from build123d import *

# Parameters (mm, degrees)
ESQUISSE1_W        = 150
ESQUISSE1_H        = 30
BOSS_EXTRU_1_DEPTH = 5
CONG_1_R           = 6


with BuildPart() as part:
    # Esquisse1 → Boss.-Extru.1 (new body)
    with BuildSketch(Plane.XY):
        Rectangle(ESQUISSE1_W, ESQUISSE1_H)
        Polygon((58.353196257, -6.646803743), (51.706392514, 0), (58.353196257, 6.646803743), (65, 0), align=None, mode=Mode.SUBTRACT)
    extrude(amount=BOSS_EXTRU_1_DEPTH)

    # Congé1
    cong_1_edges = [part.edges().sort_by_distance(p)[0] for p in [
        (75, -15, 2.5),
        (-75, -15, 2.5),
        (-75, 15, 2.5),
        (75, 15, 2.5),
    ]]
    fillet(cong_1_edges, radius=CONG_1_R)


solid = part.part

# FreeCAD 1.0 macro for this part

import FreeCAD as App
import Part
import Sketcher


def edges_at(feature, points):
    """Names of the edges that pass closest to the given points."""
    edges = feature.Shape.Edges
    near = lambda p: min(range(len(edges)), key=lambda i: edges[i].distToShape(Part.Vertex(*p))[0])
    return sorted({f"Edge{near(p) + 1}" for p in points})

doc = App.newDocument("Part")
body = doc.addObject("PartDesign::Body", "Body")

# Sketch on XY plane
sketch1 = body.newObject("Sketcher::SketchObject", "Sketch")
sketch1.AttachmentSupport = (doc.getObject("XY_Plane"), [""])
sketch1.MapMode = "FlatFace"
sketch1.addGeometry([
    Part.LineSegment(App.Vector(-75, 15, 0), App.Vector(-75, -15, 0)),  # 0
    Part.LineSegment(App.Vector(-75, -15, 0), App.Vector(75, -15, 0)),  # 1
    Part.LineSegment(App.Vector(75, -15, 0), App.Vector(75, 15, 0)),  # 2
    Part.LineSegment(App.Vector(75, 15, 0), App.Vector(-75, 15, 0)),  # 3
    Part.LineSegment(App.Vector(65, 0, 0), App.Vector(58, -7, 0)),  # 4
    Part.LineSegment(App.Vector(58, -7, 0), App.Vector(52, 0, 0)),  # 5
    Part.LineSegment(App.Vector(52, 0, 0), App.Vector(58, 7, 0)),  # 6
    Part.LineSegment(App.Vector(58, 7, 0), App.Vector(65, 0, 0)),  # 7
], False)
sketch1.addConstraint([
    Sketcher.Constraint("Coincident", 0, 2, 1, 1),
    Sketcher.Constraint("Coincident", 1, 2, 2, 1),
    Sketcher.Constraint("Coincident", 2, 2, 3, 1),
    Sketcher.Constraint("Coincident", 3, 2, 0, 1),
    Sketcher.Constraint("Coincident", 4, 2, 5, 1),
    Sketcher.Constraint("Coincident", 5, 2, 6, 1),
    Sketcher.Constraint("Coincident", 6, 2, 7, 1),
    Sketcher.Constraint("Coincident", 7, 2, 4, 1),
    Sketcher.Constraint("Vertical", 0),
    Sketcher.Constraint("Horizontal", 1),
    Sketcher.Constraint("Vertical", 2),
    Sketcher.Constraint("Horizontal", 3),
    Sketcher.Constraint("Symmetric", 0, 2, 2, 2, -1, 1),
    Sketcher.Constraint("Symmetric", 4, 2, 6, 2, -1),
    Sketcher.Constraint("PointOnObject", 5, 2, -1),
    Sketcher.Constraint("PointOnObject", 7, 2, -1),
    Sketcher.Constraint("Perpendicular", 4, 5),
    Sketcher.Constraint("Perpendicular", 5, 6),
    Sketcher.Constraint("DistanceX", 1, 1, 1, 2, 150.0),
    Sketcher.Constraint("DistanceY", 0, 2, 0, 1, 30.0),
    Sketcher.Constraint("DistanceX", -1, 1, 7, 2, 65.0),
    Sketcher.Constraint("Distance", 4, 9.4),
])
pad1 = body.newObject("PartDesign::Pad", "Pad")
pad1.Profile = sketch1
pad1.Length = 5
doc.recompute()

fillet = body.newObject("PartDesign::Fillet", "Fillet")
fillet.Base = (pad1, edges_at(pad1, [
    (75, -15, 2.5),
    (-75, -15, 2.5),
    (-75, 15, 2.5),
    (75, 15, 2.5),
]))
fillet.Radius = 6

doc.recompute()
